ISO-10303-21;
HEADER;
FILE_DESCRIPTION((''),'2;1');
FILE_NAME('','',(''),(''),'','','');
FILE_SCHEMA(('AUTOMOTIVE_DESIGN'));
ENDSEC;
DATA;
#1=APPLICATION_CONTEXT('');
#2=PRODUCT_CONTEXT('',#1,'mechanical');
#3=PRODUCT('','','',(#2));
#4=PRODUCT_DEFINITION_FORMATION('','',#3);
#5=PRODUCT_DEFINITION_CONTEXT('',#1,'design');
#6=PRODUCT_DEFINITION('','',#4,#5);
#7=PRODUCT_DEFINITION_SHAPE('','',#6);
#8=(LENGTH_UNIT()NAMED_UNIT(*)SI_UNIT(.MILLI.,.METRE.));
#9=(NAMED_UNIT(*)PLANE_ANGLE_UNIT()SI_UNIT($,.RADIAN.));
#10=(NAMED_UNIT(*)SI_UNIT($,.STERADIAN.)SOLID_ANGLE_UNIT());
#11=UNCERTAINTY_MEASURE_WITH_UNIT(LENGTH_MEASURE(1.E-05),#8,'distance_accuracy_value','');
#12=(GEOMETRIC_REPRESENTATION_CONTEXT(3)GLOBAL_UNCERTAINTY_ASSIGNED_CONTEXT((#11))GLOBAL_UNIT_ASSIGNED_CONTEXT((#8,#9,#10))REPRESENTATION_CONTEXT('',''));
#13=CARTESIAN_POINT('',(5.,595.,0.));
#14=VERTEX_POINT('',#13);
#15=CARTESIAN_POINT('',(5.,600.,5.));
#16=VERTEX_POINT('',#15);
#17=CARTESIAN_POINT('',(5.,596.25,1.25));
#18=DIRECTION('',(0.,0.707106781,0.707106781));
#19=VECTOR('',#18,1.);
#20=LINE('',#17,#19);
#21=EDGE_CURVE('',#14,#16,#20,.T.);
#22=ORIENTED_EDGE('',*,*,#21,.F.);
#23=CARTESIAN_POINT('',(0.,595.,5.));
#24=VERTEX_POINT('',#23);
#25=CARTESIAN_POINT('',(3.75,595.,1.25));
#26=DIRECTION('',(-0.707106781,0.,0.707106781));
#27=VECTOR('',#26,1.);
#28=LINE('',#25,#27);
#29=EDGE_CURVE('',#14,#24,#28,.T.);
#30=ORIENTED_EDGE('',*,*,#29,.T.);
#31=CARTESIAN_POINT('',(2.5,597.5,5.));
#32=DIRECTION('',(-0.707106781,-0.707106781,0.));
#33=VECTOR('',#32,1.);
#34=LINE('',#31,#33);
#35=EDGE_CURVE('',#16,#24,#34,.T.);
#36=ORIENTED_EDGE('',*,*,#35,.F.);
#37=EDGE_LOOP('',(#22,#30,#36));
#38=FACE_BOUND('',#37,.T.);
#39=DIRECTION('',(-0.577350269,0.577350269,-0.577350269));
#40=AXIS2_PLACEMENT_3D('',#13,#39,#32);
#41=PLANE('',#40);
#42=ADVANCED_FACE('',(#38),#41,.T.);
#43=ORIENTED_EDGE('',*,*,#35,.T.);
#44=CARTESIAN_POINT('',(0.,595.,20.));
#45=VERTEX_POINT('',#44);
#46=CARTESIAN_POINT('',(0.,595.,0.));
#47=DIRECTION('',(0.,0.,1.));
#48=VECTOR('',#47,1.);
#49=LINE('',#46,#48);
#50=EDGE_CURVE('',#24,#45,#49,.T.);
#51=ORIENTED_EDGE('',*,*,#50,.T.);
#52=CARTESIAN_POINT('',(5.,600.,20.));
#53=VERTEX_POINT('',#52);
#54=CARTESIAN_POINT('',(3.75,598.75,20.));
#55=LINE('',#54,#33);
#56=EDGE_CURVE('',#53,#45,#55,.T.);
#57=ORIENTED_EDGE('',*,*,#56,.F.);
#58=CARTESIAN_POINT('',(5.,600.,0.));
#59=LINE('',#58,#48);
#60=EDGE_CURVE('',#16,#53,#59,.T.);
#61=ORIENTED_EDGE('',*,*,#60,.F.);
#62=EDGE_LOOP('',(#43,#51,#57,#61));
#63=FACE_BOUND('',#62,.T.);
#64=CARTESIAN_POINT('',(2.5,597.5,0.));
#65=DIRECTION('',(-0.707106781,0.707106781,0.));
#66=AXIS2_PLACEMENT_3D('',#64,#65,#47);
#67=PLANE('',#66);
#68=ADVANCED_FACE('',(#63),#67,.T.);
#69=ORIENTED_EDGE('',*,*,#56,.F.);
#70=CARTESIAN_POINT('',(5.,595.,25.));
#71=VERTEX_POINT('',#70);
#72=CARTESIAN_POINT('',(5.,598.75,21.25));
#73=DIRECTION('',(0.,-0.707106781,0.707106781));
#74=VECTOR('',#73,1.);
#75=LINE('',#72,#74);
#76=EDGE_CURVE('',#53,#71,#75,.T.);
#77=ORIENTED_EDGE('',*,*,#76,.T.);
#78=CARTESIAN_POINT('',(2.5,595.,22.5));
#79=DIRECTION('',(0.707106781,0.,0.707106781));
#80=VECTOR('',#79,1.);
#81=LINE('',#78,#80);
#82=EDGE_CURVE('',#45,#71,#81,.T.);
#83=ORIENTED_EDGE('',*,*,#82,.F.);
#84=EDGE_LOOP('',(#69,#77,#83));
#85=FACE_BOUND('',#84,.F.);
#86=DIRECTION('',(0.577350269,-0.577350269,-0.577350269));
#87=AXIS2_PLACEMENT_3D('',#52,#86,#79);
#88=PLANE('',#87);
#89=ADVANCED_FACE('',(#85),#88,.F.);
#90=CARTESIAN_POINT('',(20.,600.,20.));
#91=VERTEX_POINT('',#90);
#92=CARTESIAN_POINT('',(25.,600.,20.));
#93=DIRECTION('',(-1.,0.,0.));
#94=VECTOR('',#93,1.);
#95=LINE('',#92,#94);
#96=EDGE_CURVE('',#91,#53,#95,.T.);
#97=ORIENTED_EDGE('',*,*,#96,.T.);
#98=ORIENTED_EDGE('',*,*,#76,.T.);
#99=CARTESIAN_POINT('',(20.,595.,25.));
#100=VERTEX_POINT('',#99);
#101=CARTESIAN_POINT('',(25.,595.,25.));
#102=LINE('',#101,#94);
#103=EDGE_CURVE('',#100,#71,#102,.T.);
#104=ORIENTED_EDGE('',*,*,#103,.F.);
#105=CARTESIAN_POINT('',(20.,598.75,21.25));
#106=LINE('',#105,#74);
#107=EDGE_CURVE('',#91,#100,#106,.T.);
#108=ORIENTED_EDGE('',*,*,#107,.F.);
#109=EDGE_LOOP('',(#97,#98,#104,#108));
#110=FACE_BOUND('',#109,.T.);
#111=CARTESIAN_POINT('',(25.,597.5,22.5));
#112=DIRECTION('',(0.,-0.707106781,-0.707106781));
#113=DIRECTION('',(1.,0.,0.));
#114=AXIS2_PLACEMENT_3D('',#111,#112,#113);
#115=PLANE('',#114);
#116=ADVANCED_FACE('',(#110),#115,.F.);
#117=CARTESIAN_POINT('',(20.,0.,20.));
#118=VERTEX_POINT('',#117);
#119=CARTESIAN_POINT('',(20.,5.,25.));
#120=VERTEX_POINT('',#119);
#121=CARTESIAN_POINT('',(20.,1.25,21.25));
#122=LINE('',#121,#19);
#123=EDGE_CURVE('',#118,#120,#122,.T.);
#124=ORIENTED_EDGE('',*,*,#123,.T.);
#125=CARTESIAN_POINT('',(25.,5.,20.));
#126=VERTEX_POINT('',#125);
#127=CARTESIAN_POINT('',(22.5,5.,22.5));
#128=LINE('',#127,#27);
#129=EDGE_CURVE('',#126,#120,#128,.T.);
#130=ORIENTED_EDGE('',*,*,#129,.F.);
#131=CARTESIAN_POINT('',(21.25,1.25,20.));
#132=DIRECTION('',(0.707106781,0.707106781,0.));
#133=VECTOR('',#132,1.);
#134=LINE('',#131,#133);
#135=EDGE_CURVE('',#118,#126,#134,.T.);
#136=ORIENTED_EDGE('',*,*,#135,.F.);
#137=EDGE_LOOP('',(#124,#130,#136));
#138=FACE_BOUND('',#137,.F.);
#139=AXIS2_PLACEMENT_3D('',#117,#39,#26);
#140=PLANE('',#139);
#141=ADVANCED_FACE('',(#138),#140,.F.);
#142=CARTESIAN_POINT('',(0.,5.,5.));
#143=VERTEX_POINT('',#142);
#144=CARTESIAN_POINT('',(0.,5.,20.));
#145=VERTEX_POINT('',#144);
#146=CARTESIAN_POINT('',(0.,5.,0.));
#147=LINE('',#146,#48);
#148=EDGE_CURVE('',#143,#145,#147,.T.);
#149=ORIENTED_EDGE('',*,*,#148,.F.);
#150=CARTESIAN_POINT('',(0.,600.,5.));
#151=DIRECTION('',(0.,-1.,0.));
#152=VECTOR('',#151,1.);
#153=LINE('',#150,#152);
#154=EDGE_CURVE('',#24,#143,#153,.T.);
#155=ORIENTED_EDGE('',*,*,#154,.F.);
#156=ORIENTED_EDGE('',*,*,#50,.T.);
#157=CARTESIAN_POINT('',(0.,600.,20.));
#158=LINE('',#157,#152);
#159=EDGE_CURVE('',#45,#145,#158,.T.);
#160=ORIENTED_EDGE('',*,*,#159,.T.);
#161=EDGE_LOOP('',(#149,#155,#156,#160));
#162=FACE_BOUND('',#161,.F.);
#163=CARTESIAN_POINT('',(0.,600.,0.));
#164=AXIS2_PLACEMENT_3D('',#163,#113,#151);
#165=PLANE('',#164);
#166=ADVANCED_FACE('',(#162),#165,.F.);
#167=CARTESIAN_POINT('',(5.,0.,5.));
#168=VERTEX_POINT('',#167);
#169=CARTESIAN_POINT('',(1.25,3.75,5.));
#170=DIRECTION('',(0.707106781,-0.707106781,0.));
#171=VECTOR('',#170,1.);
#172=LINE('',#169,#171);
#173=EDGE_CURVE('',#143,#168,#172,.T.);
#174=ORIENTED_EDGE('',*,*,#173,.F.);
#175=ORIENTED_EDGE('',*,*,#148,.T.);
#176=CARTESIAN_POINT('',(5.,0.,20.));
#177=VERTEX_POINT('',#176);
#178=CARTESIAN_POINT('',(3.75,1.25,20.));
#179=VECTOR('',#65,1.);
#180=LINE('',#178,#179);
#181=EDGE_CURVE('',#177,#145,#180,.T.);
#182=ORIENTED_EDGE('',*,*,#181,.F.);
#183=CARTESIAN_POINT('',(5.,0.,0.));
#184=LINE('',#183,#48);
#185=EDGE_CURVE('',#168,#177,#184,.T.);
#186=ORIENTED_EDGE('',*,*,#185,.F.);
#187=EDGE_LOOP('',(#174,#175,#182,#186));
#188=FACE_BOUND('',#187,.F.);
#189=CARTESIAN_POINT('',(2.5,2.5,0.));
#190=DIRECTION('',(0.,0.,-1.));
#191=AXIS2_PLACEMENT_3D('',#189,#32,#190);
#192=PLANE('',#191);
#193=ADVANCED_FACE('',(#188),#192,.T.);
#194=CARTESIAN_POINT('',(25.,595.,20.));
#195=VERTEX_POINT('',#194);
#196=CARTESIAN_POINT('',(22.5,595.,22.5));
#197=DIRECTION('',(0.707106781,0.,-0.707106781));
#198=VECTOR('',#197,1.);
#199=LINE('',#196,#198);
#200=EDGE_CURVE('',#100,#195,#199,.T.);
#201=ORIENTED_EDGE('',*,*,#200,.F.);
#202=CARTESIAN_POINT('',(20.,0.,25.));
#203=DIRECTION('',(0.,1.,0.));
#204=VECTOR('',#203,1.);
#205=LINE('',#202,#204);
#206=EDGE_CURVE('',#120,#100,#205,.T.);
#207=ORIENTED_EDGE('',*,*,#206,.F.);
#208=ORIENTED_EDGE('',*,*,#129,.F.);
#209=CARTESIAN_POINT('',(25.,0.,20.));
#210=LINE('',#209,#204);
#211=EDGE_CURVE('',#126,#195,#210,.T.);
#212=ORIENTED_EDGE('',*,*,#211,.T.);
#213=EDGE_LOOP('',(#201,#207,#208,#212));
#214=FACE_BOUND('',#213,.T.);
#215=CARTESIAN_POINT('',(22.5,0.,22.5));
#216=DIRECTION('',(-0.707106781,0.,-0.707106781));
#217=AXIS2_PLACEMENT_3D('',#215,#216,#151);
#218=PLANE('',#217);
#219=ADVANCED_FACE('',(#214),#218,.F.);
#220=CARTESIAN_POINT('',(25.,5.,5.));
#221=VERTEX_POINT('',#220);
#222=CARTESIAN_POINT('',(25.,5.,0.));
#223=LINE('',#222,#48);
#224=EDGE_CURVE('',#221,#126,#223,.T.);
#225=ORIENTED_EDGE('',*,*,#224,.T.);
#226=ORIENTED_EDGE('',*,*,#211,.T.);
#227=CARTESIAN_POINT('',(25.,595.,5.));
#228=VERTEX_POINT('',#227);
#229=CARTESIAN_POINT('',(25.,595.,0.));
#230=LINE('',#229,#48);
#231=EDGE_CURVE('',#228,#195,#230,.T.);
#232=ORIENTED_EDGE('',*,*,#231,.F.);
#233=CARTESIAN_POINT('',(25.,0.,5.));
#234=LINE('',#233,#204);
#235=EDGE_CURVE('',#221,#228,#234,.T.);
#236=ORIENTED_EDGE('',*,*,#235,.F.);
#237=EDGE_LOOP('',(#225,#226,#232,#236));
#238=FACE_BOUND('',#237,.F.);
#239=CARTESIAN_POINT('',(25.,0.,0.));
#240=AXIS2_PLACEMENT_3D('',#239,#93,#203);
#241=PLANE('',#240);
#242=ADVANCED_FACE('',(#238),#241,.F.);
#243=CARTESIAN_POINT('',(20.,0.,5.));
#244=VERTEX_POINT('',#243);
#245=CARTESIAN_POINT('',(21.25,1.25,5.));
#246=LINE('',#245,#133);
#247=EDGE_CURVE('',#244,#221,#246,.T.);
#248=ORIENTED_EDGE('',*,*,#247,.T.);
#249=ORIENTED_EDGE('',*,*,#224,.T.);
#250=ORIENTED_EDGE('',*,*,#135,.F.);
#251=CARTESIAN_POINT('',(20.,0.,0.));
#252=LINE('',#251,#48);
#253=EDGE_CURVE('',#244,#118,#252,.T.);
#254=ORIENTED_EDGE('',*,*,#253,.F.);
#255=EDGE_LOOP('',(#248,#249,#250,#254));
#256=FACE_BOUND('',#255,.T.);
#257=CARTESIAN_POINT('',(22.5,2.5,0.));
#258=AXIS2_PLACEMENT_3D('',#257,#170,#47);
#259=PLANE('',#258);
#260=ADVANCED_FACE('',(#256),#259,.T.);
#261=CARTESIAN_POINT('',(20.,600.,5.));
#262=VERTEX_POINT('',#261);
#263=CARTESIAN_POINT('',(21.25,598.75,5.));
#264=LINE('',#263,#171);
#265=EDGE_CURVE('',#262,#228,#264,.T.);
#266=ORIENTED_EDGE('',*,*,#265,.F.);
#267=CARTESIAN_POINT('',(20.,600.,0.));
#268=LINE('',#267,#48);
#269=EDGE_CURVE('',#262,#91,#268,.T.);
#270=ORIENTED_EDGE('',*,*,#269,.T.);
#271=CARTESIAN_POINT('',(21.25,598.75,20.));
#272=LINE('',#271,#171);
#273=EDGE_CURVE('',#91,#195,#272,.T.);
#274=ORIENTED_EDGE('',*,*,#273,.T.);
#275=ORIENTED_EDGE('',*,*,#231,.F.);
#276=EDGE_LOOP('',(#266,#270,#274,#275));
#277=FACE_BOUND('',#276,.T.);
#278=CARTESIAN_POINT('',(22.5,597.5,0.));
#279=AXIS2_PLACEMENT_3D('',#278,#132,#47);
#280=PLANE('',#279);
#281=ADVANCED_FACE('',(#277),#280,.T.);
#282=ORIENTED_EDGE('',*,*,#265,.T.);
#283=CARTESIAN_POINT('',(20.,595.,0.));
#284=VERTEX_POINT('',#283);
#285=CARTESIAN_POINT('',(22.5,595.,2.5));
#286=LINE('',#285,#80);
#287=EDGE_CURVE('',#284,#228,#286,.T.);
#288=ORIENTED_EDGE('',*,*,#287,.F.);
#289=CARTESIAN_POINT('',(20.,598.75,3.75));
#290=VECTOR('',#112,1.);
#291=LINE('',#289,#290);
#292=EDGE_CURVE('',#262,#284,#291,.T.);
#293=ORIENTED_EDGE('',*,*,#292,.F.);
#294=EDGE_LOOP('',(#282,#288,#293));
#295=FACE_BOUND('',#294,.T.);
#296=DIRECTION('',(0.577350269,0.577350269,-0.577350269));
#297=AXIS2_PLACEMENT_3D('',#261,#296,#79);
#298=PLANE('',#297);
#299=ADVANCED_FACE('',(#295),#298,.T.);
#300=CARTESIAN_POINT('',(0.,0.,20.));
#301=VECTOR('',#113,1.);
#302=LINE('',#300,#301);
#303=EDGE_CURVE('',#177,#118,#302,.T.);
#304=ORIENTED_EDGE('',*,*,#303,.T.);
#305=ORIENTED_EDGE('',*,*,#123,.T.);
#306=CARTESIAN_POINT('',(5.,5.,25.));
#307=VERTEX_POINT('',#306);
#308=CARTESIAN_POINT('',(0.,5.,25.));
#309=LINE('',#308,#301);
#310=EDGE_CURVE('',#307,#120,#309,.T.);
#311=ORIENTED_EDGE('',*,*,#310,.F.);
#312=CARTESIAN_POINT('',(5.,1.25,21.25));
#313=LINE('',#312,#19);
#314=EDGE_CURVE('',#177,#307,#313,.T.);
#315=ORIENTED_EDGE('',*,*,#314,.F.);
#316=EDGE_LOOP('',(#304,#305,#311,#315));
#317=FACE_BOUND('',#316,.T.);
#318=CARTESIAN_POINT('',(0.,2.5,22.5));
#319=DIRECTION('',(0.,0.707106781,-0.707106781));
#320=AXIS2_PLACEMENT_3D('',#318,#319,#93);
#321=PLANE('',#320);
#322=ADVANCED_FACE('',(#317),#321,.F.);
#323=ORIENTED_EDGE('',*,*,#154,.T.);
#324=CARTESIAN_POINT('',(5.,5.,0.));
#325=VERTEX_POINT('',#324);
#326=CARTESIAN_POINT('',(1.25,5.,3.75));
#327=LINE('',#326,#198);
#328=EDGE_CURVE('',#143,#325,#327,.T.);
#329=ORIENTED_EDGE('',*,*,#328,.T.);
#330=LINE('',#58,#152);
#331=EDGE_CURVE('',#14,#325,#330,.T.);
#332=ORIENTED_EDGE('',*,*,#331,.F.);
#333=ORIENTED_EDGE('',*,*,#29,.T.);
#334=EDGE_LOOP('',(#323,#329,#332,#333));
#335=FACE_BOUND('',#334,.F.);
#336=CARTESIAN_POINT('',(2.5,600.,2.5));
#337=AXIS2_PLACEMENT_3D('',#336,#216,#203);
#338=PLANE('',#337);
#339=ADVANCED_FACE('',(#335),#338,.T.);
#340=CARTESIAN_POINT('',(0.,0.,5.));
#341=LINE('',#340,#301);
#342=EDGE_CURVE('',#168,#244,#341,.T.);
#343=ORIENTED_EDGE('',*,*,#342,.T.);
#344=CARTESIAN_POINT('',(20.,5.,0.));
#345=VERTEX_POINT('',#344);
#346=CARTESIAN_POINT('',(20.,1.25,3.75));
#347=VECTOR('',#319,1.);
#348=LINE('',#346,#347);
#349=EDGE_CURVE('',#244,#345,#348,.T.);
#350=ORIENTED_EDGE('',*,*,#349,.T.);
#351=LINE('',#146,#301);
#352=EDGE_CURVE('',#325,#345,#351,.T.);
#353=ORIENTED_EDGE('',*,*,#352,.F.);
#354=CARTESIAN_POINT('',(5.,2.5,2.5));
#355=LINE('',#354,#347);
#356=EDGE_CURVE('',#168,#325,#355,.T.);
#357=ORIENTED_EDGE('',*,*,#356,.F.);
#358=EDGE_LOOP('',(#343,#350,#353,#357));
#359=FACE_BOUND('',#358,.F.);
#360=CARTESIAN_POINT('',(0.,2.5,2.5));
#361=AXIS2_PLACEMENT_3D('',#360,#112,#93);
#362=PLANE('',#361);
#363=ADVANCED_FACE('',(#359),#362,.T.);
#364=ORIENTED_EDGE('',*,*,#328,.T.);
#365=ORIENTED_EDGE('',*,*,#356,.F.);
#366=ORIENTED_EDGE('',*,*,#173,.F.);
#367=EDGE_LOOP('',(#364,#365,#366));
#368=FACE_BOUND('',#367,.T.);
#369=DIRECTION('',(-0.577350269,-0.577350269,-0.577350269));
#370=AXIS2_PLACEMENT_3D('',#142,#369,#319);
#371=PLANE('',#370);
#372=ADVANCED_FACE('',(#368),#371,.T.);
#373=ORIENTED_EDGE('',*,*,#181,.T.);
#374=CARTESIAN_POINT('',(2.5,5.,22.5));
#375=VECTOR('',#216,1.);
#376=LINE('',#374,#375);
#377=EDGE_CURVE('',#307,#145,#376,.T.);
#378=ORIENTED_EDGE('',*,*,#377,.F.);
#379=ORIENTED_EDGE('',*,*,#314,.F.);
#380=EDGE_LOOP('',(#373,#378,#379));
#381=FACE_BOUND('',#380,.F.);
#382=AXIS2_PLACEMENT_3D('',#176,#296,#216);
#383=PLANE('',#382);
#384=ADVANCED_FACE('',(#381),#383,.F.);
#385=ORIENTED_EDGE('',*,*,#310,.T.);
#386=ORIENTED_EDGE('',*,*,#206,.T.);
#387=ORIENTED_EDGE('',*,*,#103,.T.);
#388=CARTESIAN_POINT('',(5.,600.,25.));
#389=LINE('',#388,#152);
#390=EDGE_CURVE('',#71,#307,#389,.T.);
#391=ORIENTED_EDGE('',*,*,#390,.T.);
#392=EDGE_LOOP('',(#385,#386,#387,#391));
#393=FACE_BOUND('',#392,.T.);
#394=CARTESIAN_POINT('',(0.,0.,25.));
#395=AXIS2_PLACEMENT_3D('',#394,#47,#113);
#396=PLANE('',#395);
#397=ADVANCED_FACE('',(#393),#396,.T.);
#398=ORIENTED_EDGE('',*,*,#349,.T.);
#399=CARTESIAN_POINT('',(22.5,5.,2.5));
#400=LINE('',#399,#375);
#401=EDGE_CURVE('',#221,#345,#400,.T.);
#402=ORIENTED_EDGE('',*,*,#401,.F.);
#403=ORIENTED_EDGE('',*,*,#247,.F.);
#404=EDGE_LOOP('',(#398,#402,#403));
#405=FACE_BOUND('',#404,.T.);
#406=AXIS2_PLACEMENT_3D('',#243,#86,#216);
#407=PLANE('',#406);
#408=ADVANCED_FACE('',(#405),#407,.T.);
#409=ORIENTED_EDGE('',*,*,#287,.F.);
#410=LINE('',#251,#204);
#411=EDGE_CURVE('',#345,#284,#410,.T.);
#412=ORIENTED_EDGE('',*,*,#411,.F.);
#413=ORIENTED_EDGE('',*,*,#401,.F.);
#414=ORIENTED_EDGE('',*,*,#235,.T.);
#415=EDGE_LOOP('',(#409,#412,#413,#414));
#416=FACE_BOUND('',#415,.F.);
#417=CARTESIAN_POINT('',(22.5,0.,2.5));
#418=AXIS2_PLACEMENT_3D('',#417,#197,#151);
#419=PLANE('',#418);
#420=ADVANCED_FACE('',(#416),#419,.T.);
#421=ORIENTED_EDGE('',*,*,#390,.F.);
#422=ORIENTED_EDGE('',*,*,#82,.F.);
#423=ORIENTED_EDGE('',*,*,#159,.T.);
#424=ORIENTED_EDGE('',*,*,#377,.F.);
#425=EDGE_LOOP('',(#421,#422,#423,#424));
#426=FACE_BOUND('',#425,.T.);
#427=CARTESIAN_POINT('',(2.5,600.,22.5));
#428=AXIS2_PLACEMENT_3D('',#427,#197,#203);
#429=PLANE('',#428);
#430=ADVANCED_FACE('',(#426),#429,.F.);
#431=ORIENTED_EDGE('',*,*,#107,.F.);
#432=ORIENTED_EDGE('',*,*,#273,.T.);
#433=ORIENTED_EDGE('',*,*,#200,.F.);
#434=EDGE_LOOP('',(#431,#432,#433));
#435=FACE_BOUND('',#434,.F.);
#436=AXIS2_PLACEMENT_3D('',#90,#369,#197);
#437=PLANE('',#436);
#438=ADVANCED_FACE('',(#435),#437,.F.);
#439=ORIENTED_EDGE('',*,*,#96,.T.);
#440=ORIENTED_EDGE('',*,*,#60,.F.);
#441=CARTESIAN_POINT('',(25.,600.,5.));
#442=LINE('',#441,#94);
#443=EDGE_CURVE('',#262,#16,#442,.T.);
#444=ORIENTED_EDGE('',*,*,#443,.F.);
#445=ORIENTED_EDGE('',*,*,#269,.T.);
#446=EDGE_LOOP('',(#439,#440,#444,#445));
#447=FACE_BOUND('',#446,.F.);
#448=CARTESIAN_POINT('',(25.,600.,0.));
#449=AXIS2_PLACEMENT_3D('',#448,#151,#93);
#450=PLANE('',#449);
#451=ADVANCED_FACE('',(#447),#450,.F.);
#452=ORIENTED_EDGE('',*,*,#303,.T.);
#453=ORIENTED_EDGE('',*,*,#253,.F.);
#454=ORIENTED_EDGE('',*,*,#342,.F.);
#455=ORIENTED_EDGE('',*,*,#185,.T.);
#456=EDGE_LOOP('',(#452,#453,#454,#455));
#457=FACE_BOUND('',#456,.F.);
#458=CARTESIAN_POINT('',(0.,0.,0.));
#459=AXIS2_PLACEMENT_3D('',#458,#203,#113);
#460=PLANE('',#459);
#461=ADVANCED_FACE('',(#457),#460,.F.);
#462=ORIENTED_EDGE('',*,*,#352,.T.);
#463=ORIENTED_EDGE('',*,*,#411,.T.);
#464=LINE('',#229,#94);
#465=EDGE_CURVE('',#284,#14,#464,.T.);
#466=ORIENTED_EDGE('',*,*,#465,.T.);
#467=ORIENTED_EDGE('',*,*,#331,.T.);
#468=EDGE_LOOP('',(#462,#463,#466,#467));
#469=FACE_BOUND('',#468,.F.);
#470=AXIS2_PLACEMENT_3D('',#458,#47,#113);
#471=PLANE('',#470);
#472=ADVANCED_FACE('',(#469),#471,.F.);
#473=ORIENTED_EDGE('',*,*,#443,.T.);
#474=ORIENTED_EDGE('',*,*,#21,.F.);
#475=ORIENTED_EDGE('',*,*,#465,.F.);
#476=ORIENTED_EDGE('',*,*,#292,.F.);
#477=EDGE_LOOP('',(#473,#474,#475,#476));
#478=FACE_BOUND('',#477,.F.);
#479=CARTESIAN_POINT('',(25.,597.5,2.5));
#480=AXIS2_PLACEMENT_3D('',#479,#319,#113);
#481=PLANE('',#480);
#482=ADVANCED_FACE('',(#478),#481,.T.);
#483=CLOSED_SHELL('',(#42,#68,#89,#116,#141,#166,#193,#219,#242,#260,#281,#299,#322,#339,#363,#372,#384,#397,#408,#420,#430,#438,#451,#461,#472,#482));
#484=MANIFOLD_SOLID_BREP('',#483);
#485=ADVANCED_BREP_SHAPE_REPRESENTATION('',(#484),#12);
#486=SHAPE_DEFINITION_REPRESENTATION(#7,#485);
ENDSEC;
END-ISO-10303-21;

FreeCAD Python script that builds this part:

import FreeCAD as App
import Part
import Sketcher

V = App.Vector
Q = App.Units.Quantity


def add_polygon(sketch, points):
    """Adds a closed chain of lines whose ends are joined by coincident constraints."""
    first, n = sketch.GeometryCount, len(points)
    for a, b in zip(points, points[1:] + points[:1]):
        sketch.addGeometry(Part.LineSegment(App.Vector(*a, 0), App.Vector(*b, 0)), False)
    for i in range(n):
        sketch.addConstraint(Sketcher.Constraint("Coincident", first + i, 2, first + (i + 1) % n, 1))

doc = App.newDocument("Part")
body = doc.addObject("PartDesign::Body", "Body")

# Sketch on XY plane
sketch1 = body.newObject("Sketcher::SketchObject", "Sketch")
sketch1.AttachmentSupport = (doc.getObject("XY_Plane"), [""])
sketch1.MapMode = "FlatFace"
add_polygon(sketch1, [(0, 600), (0, 0), (25, 0), (25, 600)])  # lines 0-3
sketch1.addConstraint([
    Sketcher.Constraint("Vertical", 0),
    Sketcher.Constraint("Horizontal", 1),
    Sketcher.Constraint("Vertical", 2),
    Sketcher.Constraint("Horizontal", 3),
    Sketcher.Constraint("Coincident", 0, 2, -1, 1),
    Sketcher.Constraint("DistanceX", 1, 1, 1, 2, Q("25 mm")),
    Sketcher.Constraint("DistanceY", 0, 2, 0, 1, Q("600 mm")),
])
pad1 = body.newObject("PartDesign::Pad", "Pad")
pad1.Profile = sketch1
pad1.Length = 25
doc.recompute()

chamfer = body.newObject("PartDesign::Chamfer", "Chamfer")
chamfer.Base = (pad1, ["Edge1"])
chamfer.UseAllEdges = True
chamfer.Size = 5

doc.recompute()
